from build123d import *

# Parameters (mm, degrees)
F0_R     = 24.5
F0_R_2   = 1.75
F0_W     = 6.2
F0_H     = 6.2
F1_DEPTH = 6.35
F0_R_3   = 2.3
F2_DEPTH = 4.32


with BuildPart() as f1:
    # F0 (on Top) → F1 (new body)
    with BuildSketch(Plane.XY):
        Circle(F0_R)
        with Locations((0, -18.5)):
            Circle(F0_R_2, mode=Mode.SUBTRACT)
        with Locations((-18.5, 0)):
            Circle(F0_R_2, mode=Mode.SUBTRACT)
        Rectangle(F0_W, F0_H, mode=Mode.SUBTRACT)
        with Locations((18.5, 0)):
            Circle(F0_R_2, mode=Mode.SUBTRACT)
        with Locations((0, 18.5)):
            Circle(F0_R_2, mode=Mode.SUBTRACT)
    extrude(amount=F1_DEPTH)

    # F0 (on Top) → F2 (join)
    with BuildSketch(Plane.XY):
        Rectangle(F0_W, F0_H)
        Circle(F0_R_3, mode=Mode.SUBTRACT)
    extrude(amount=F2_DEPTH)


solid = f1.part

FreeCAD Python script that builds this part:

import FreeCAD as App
import Part
import Sketcher
from FreeCAD import Vector
Q = App.Units.Quantity

doc = App.newDocument("Part")
params = doc.addObject("Spreadsheet::Sheet", "Params")
for row, (alias, value) in enumerate([
    ("sketch1_diameter", "49 mm"),
    ("sketch1_diameter2", "3.5 mm"),
    ("sketch1_width", "6.2 mm"),
    ("pad1_length", "6.35 mm"),
    ("sketch2_diameter", "4.6 mm"),
    ("sketch2_width", "6.2 mm"),
    ("pad2_length", "4.32 mm"),
], start=1):
    params.set(f"A{row}", alias)
    params.set(f"B{row}", "=" + value)
    params.setAlias(f"B{row}", alias)

body = doc.addObject("PartDesign::Body", "Body")

# Sketch on XY plane
sketch1 = doc.addObject("Sketcher::SketchObject", "Sketch")
body.addObject(sketch1)
sketch1.AttachmentSupport = (doc.XY_Plane, [""])
sketch1.MapMode = "FlatFace"
sketch1.addGeometry(Part.Circle(Vector(0, 0, 0), Vector(0, 0, 1), 24.5), False)
sketch1.addGeometry(Part.Circle(Vector(0, -18.5, 0), Vector(0, 0, 1), 1.8), False)
sketch1.addGeometry(Part.Circle(Vector(-18.5, 0, 0), Vector(0, 0, 1), 1.8), False)
sketch1.addGeometry(Part.LineSegment(Vector(3.1, -3.1, 0), Vector(-3.1, -3.1, 0)), False)
sketch1.addGeometry(Part.LineSegment(Vector(-3.1, -3.1, 0), Vector(-3.1, 3.1, 0)), False)
sketch1.addGeometry(Part.LineSegment(Vector(-3.1, 3.1, 0), Vector(3.1, 3.1, 0)), False)
sketch1.addGeometry(Part.LineSegment(Vector(3.1, 3.1, 0), Vector(3.1, -3.1, 0)), False)
sketch1.addGeometry(Part.Circle(Vector(18.5, 0, 0), Vector(0, 0, 1), 1.8), False)
sketch1.addGeometry(Part.Circle(Vector(0, 18.5, 0), Vector(0, 0, 1), 1.8), False)
sketch1.addConstraint(Sketcher.Constraint("Coincident", 3, 2, 4, 1))
sketch1.addConstraint(Sketcher.Constraint("Coincident", 4, 2, 5, 1))
sketch1.addConstraint(Sketcher.Constraint("Coincident", 5, 2, 6, 1))
sketch1.addConstraint(Sketcher.Constraint("Coincident", 6, 2, 3, 1))
sketch1.addConstraint(Sketcher.Constraint("Horizontal", 3))
sketch1.addConstraint(Sketcher.Constraint("Vertical", 4))
sketch1.addConstraint(Sketcher.Constraint("Horizontal", 5))
sketch1.addConstraint(Sketcher.Constraint("Vertical", 6))
sketch1.addConstraint(Sketcher.Constraint("Coincident", 0, 3, -1, 1))
sketch1.addConstraint(Sketcher.Constraint("Equal", 1, 2))
sketch1.addConstraint(Sketcher.Constraint("Equal", 2, 7))
sketch1.addConstraint(Sketcher.Constraint("Equal", 7, 8))
sketch1.addConstraint(Sketcher.Constraint("Symmetric", 2, 3, 7, 3, -1, 1))
sketch1.addConstraint(Sketcher.Constraint("Symmetric", 1, 3, 8, 3, -1, 1))
sketch1.addConstraint(Sketcher.Constraint("Symmetric", 3, 2, 5, 2, -1, 1))
sketch1.addConstraint(Sketcher.Constraint("PointOnObject", 1, 3, -2))
sketch1.addConstraint(Sketcher.Constraint("PointOnObject", 2, 3, -1))
sketch1.addConstraint(Sketcher.Constraint("Equal", 5, 4))
sketch1.addConstraint(Sketcher.Constraint("Diameter", 0, Q("49 mm")))
sketch1.addConstraint(Sketcher.Constraint("Diameter", 1, Q("3.5 mm")))
sketch1.addConstraint(Sketcher.Constraint("DistanceX", 3, 2, 3, 1, Q("6.2 mm")))
sketch1.addConstraint(Sketcher.Constraint("DistanceX", 2, 3, 7, 3, Q("37 mm")))
sketch1.addConstraint(Sketcher.Constraint("DistanceY", 1, 3, 8, 3, Q("37 mm")))
sketch1.setExpression("Constraints[18]", "Params.sketch1_diameter")
sketch1.setExpression("Constraints[19]", "Params.sketch1_diameter2")
sketch1.setExpression("Constraints[20]", "Params.sketch1_width")
pad1 = doc.addObject("PartDesign::Pad", "Pad")
body.addObject(pad1)
pad1.Profile = sketch1
pad1.setExpression("Length", "Params.pad1_length")

# Sketch on XY plane
sketch2 = doc.addObject("Sketcher::SketchObject", "Sketch001")
body.addObject(sketch2)
sketch2.AttachmentSupport = (doc.XY_Plane, [""])
sketch2.MapMode = "FlatFace"
sketch2.addGeometry(Part.LineSegment(Vector(-3.1, 3.1, 0), Vector(-3.1, -3.1, 0)), False)
sketch2.addGeometry(Part.LineSegment(Vector(-3.1, -3.1, 0), Vector(3.1, -3.1, 0)), False)
sketch2.addGeometry(Part.LineSegment(Vector(3.1, -3.1, 0), Vector(3.1, 3.1, 0)), False)
sketch2.addGeometry(Part.LineSegment(Vector(3.1, 3.1, 0), Vector(-3.1, 3.1, 0)), False)
sketch2.addGeometry(Part.Circle(Vector(0, 0, 0), Vector(0, 0, 1), 2.3), False)
sketch2.addConstraint(Sketcher.Constraint("Coincident", 0, 2, 1, 1))
sketch2.addConstraint(Sketcher.Constraint("Coincident", 1, 2, 2, 1))
sketch2.addConstraint(Sketcher.Constraint("Coincident", 2, 2, 3, 1))
sketch2.addConstraint(Sketcher.Constraint("Coincident", 3, 2, 0, 1))
sketch2.addConstraint(Sketcher.Constraint("Vertical", 0))
sketch2.addConstraint(Sketcher.Constraint("Horizontal", 1))
sketch2.addConstraint(Sketcher.Constraint("Vertical", 2))
sketch2.addConstraint(Sketcher.Constraint("Horizontal", 3))
sketch2.addConstraint(Sketcher.Constraint("Coincident", 4, 3, -1, 1))
sketch2.addConstraint(Sketcher.Constraint("Symmetric", 0, 2, 2, 2, -1, 1))
sketch2.addConstraint(Sketcher.Constraint("Equal", 3, 0))
sketch2.addConstraint(Sketcher.Constraint("Diameter", 4, Q("4.6 mm")))
sketch2.addConstraint(Sketcher.Constraint("DistanceX", 1, 1, 1, 2, Q("6.2 mm")))
sketch2.setExpression("Constraints[11]", "Params.sketch2_diameter")
sketch2.setExpression("Constraints[12]", "Params.sketch2_width")
pad2 = doc.addObject("PartDesign::Pad", "Pad001")
body.addObject(pad2)
pad2.Profile = sketch2
pad2.setExpression("Length", "Params.pad2_length")

doc.recompute()
